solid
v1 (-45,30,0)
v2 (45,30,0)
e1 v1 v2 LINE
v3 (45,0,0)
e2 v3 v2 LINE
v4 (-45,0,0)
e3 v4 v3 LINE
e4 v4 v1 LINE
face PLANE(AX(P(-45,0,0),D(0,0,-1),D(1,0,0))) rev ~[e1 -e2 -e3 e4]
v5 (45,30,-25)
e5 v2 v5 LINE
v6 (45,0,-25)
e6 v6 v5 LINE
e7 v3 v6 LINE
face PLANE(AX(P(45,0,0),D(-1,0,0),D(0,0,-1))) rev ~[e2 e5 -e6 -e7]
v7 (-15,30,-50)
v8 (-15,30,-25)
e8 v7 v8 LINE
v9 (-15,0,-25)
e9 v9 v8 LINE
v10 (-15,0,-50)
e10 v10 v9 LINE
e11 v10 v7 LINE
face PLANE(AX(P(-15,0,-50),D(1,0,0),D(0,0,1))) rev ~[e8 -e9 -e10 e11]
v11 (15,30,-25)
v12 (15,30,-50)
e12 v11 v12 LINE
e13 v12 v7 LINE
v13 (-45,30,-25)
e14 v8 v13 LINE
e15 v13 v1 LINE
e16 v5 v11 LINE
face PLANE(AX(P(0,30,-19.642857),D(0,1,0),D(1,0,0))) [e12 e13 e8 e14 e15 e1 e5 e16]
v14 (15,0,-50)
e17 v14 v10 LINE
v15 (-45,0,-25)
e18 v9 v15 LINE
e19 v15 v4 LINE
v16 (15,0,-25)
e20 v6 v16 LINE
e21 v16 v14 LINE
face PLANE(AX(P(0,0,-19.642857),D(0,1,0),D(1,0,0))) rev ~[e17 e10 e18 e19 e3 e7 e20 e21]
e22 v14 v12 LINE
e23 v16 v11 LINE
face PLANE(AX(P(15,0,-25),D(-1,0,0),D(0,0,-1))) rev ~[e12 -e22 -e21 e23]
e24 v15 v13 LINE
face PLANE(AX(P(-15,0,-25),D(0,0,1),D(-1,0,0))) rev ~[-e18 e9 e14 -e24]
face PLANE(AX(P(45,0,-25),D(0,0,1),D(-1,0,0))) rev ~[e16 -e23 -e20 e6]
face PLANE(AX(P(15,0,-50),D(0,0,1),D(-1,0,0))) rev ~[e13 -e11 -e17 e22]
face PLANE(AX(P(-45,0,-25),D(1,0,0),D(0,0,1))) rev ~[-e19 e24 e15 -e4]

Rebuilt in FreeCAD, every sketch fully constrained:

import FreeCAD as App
import Part
import Sketcher


def add_polygon(sketch, points):
    """Adds a closed chain of lines whose ends are joined by coincident constraints."""
    first, n = sketch.GeometryCount, len(points)
    for a, b in zip(points, points[1:] + points[:1]):
        sketch.addGeometry(Part.LineSegment(App.Vector(*a, 0), App.Vector(*b, 0)), False)
    for i in range(n):
        sketch.addConstraint(Sketcher.Constraint("Coincident", first + i, 2, first + (i + 1) % n, 1))

doc = App.newDocument("Part")
body = doc.addObject("PartDesign::Body", "Body")

sketch1 = doc.addObject("Sketcher::SketchObject", "Sketch")
body.addObject(sketch1)
sketch1.AttachmentSupport = (doc.XZ_Plane, [""])
sketch1.MapMode = "FlatFace"
add_polygon(sketch1, [(-45, 0), (45, 0), (45, -25), (15, -25), (15, -50), (-15, -50), (-15, -25), (-45, -25)])
sketch1.addConstraint([
    Sketcher.Constraint("Horizontal", 0),
    Sketcher.Constraint("Vertical", 1),
    Sketcher.Constraint("Horizontal", 2),
    Sketcher.Constraint("Vertical", 3),
    Sketcher.Constraint("Horizontal", 4),
    Sketcher.Constraint("Vertical", 5),
    Sketcher.Constraint("Horizontal", 6),
    Sketcher.Constraint("Vertical", 7),
    Sketcher.Constraint("Symmetric", 0, 2, 7, 2, -1, 1),
    Sketcher.Constraint("Symmetric", 2, 2, 5, 2, -2),
    Sketcher.Constraint("Equal", 2, 4),
    Sketcher.Constraint("Equal", 1, 3),
    Sketcher.Constraint("DistanceX", 0, 1, 0, 2, 90.0),
    Sketcher.Constraint("DistanceY", 1, 2, 1, 1, 25.0),
])
pad1 = doc.addObject("PartDesign::Pad", "Pad")
body.addObject(pad1)
pad1.Profile = sketch1
pad1.Length = 30
pad1.Reversed = True

doc.recompute()
